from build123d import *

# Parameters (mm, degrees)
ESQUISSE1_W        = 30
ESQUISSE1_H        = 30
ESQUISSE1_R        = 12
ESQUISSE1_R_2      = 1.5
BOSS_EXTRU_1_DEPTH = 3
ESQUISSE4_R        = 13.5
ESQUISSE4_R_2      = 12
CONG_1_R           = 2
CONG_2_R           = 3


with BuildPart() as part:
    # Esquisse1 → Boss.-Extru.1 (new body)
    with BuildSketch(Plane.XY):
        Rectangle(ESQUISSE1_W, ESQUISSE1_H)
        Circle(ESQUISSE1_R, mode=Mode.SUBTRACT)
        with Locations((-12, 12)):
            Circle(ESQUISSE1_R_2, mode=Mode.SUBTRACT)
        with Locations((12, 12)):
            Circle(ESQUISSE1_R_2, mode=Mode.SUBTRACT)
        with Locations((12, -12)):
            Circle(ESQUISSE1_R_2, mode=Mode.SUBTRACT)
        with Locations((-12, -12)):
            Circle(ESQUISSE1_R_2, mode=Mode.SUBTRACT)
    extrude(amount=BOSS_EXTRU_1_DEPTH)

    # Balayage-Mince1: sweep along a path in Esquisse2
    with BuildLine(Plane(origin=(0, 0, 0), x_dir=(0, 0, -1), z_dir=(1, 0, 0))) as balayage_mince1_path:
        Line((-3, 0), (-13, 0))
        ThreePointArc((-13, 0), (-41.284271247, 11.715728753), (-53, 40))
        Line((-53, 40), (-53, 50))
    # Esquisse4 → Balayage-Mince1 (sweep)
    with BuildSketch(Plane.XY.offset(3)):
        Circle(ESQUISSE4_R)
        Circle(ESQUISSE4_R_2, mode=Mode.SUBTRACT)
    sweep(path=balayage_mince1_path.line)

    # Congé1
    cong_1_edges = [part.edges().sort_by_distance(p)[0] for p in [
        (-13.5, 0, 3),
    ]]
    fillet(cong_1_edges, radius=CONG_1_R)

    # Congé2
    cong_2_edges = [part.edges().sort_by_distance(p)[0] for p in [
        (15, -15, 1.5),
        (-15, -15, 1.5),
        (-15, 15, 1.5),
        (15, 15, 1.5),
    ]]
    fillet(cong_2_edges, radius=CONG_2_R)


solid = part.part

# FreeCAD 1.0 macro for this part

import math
import FreeCAD as App
import Part
import Sketcher


def edges_at(feature, points):
    """Names of the edges that pass closest to the given points."""
    edges = feature.Shape.Edges
    near = lambda p: min(range(len(edges)), key=lambda i: edges[i].distToShape(Part.Vertex(*p))[0])
    return sorted({f"Edge{near(p) + 1}" for p in points})

doc = App.newDocument("Part")
body = doc.addObject("PartDesign::Body", "Body")

# Sketch on XY plane
sketch1 = body.newObject("Sketcher::SketchObject", "Sketch")
sketch1.AttachmentSupport = (doc.getObject("XY_Plane"), [""])
sketch1.MapMode = "FlatFace"
sketch1.addGeometry([
    Part.LineSegment(App.Vector(-15, 15, 0), App.Vector(-15, -15, 0)),  # 0
    Part.LineSegment(App.Vector(-15, -15, 0), App.Vector(15, -15, 0)),  # 1
    Part.LineSegment(App.Vector(15, -15, 0), App.Vector(15, 15, 0)),  # 2
    Part.LineSegment(App.Vector(15, 15, 0), App.Vector(-15, 15, 0)),  # 3
    Part.Circle(App.Vector(-12, -12, 0), App.Vector(0, 0, 1), 1.5),  # 4
    Part.Circle(App.Vector(12, -12, 0), App.Vector(0, 0, 1), 1.5),  # 5
    Part.Circle(App.Vector(-12, 12, 0), App.Vector(0, 0, 1), 1.5),  # 6
    Part.Circle(App.Vector(0, 0, 0), App.Vector(0, 0, 1), 12),  # 7
    Part.Circle(App.Vector(12, 12, 0), App.Vector(0, 0, 1), 1.5),  # 8
], False)
sketch1.addConstraint([
    Sketcher.Constraint("Coincident", 0, 2, 1, 1),
    Sketcher.Constraint("Coincident", 1, 2, 2, 1),
    Sketcher.Constraint("Coincident", 2, 2, 3, 1),
    Sketcher.Constraint("Coincident", 3, 2, 0, 1),
    Sketcher.Constraint("Vertical", 0),
    Sketcher.Constraint("Horizontal", 1),
    Sketcher.Constraint("Vertical", 2),
    Sketcher.Constraint("Horizontal", 3),
    Sketcher.Constraint("Coincident", 7, 3, -1, 1),
    Sketcher.Constraint("Equal", 4, 5),
    Sketcher.Constraint("Equal", 5, 6),
    Sketcher.Constraint("Equal", 6, 8),
    Sketcher.Constraint("Symmetric", 5, 3, 6, 3, -1, 1),
    Sketcher.Constraint("Symmetric", 4, 3, 8, 3, -1, 1),
    Sketcher.Constraint("Symmetric", 0, 2, 2, 2, -1, 1),
    Sketcher.Constraint("Symmetric", 4, 3, 5, 3, -2),
    Sketcher.Constraint("Equal", 3, 0),
    Sketcher.Constraint("Diameter", 4, 3.0),
    Sketcher.Constraint("Diameter", 7, 24.0),
    Sketcher.Constraint("DistanceX", 1, 1, 1, 2, 30.0),
    Sketcher.Constraint("DistanceX", 4, 3, -1, 1, 12.0),
    Sketcher.Constraint("DistanceY", 4, 3, -1, 1, 12.0),
])
pad1 = body.newObject("PartDesign::Pad", "Pad")
pad1.Profile = sketch1
pad1.Length = 3

# Sketch on XY plane
sketch2 = body.newObject("Sketcher::SketchObject", "Sketch001")
sketch2.AttachmentSupport = (doc.getObject("XY_Plane"), [""])
sketch2.MapMode = "FlatFace"
sketch2.AttachmentOffset = App.Placement(App.Vector(0, 0, 3), App.Rotation())
sketch2.addGeometry([
    Part.Circle(App.Vector(0, 0, 0), App.Vector(0, 0, 1), 14),
    Part.Circle(App.Vector(0, 0, 0), App.Vector(0, 0, 1), 12),
], False)
sketch2.addConstraint([
    Sketcher.Constraint("Coincident", 0, 3, -1, 1),
    Sketcher.Constraint("Coincident", 1, 3, -1, 1),
    Sketcher.Constraint("Diameter", 0, 27.0),
    Sketcher.Constraint("Diameter", 1, 24.0),
])

# Sketch on YZ plane
sketch3 = body.newObject("Sketcher::SketchObject", "Sketch002")
sketch3.AttachmentSupport = (doc.getObject("YZ_Plane"), [""])
sketch3.MapMode = "FlatFace"
sketch3.addGeometry([
    Part.LineSegment(App.Vector(0, 3, 0), App.Vector(0, 13, 0)),
    Part.ArcOfCircle(Part.Circle(App.Vector(40, 13, 0), App.Vector(0, 0, 1), 40), math.radians(90), math.radians(180)),
    Part.LineSegment(App.Vector(40, 53, 0), App.Vector(50, 53, 0)),
], False)
sketch3.addConstraint([
    Sketcher.Constraint("Tangent", 0, 2, 1, 2),
    Sketcher.Constraint("Tangent", 1, 1, 2, 1),
    Sketcher.Constraint("Vertical", 0),
    Sketcher.Constraint("Horizontal", 2),
    Sketcher.Constraint("PointOnObject", 0, 1, -2),
    Sketcher.Constraint("Equal", 2, 0),
    Sketcher.Constraint("Radius", 1, 40.0),
    Sketcher.Constraint("DistanceX", 2, 1, 2, 2, 10.0),
    Sketcher.Constraint("DistanceY", -1, 1, 1, 3, 13.0),
])
doc.recompute()

additivepipe = body.newObject("PartDesign::AdditivePipe", "AdditivePipe")
additivepipe.Profile = sketch2
additivepipe.Spine = (sketch3, ["Edge1", "Edge2", "Edge3"])
doc.recompute()

fillet = body.newObject("PartDesign::Fillet", "Fillet")
fillet.Base = (additivepipe, edges_at(additivepipe, [(-13.5, 0, 3)]))
fillet.Radius = 2
doc.recompute()

fillet2 = body.newObject("PartDesign::Fillet", "Fillet001")
fillet2.Base = (fillet, edges_at(fillet, [
    (15, -15, 1.5),
    (-15, -15, 1.5),
    (-15, 15, 1.5),
    (15, 15, 1.5),
]))
fillet2.Radius = 3

doc.recompute()
